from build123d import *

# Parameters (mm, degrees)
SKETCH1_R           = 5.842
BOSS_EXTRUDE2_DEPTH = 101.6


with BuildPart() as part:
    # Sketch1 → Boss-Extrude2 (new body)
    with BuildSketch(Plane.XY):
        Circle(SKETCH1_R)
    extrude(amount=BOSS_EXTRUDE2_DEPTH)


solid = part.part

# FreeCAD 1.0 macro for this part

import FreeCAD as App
import Part
import Sketcher
from FreeCAD import Vector
Q = App.Units.Quantity

doc = App.newDocument("Part")
body = doc.addObject("PartDesign::Body", "Body")

# Sketch on XY plane
sketch1 = body.newObject("Sketcher::SketchObject", "Sketch")
sketch1.AttachmentSupport = (doc.getObject("XY_Plane"), [""])
sketch1.MapMode = "FlatFace"
sketch1.addGeometry(Part.Circle(Vector(0, 0, 0), Vector(0, 0, 1), 5.842), False)
sketch1.addConstraint(Sketcher.Constraint("Coincident", 0, 3, -1, 1))
sketch1.addConstraint(Sketcher.Constraint("Diameter", 0, Q("0.46 in")))
pad1 = body.newObject("PartDesign::Pad", "Pad")
pad1.Profile = sketch1
pad1.Length = Q("4 in")

doc.recompute()
